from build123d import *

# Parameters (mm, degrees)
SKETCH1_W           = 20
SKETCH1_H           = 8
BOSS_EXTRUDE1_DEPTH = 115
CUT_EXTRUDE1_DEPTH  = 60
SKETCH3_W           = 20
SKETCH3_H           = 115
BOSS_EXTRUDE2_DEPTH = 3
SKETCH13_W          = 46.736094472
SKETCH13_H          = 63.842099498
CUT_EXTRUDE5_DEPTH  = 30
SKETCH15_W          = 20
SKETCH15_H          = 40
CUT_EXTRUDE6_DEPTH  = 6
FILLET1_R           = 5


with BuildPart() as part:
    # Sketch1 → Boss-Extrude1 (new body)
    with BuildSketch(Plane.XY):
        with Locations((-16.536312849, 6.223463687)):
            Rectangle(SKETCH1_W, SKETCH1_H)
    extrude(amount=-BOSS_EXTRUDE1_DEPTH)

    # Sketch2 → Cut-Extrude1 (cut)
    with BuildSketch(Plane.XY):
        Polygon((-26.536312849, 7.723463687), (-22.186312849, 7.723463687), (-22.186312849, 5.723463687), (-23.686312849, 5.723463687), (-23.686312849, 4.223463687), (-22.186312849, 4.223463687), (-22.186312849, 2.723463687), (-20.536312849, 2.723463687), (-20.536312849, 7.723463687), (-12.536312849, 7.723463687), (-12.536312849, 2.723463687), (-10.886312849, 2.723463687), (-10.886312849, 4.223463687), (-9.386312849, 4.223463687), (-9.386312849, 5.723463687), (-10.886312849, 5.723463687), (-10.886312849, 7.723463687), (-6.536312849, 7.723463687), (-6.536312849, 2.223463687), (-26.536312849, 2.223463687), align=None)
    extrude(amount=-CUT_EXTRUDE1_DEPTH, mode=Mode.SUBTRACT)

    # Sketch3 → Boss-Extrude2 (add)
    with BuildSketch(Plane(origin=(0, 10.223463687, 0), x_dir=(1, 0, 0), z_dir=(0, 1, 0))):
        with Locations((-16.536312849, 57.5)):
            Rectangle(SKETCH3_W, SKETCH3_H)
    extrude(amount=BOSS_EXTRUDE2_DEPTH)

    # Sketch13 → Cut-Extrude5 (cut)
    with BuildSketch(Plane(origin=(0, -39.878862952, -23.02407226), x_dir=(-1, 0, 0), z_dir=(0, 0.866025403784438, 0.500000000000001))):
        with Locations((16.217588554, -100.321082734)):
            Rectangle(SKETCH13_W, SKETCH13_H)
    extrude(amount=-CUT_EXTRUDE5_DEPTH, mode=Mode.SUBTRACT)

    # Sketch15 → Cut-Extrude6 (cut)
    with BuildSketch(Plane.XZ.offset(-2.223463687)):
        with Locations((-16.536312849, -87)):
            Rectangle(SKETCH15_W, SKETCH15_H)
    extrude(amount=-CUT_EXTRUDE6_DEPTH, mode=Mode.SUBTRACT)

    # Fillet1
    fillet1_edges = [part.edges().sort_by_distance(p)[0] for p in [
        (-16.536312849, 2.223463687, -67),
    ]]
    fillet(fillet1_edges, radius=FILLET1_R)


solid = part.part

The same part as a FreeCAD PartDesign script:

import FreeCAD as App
import Part
import Sketcher

V = App.Vector


def edges_at(feature, points):
    """Names of the edges that pass closest to the given points."""
    edges = feature.Shape.Edges
    near = lambda p: min(range(len(edges)), key=lambda i: edges[i].distToShape(Part.Vertex(*p))[0])
    return sorted({f"Edge{near(p) + 1}" for p in points})


def add_polygon(sketch, points):
    """Adds a closed chain of lines whose ends are joined by coincident constraints."""
    first, n = sketch.GeometryCount, len(points)
    for a, b in zip(points, points[1:] + points[:1]):
        sketch.addGeometry(Part.LineSegment(App.Vector(*a, 0), App.Vector(*b, 0)), False)
    for i in range(n):
        sketch.addConstraint(Sketcher.Constraint("Coincident", first + i, 2, first + (i + 1) % n, 1))

doc = App.newDocument("Part")
body = doc.addObject("PartDesign::Body", "Body")

sketch1 = doc.addObject("Sketcher::SketchObject", "Sketch")
body.addObject(sketch1)
sketch1.AttachmentSupport = (doc.XY_Plane, [""])
sketch1.MapMode = "FlatFace"
add_polygon(sketch1, [(-27, 10), (-27, 2), (-7, 2), (-7, 10)])
sketch1.addConstraint(Sketcher.Constraint("Vertical", 0))
sketch1.addConstraint(Sketcher.Constraint("Horizontal", 1))
sketch1.addConstraint(Sketcher.Constraint("Vertical", 2))
sketch1.addConstraint(Sketcher.Constraint("Horizontal", 3))
sketch1.addConstraint(Sketcher.Constraint("DistanceX", 1, 1, 1, 2, 20.0))
sketch1.addConstraint(Sketcher.Constraint("DistanceY", 0, 2, 0, 1, 8.0))
sketch1.addConstraint(Sketcher.Constraint("DistanceX", 0, 2, -1, 1, 26.536313))
sketch1.addConstraint(Sketcher.Constraint("DistanceY", -1, 1, 0, 2, 2.223464))
pad1 = doc.addObject("PartDesign::Pad", "Pad")
body.addObject(pad1)
pad1.Profile = sketch1
pad1.Length = 115
pad1.Reversed = True

sketch2 = doc.addObject("Sketcher::SketchObject", "Sketch001")
body.addObject(sketch2)
sketch2.AttachmentSupport = (doc.XY_Plane, [""])
sketch2.MapMode = "FlatFace"
add_polygon(sketch2, [(-22.2, 7.7), (-26.5, 7.7), (-26.5, 2.2), (-6.5, 2.2), (-6.5, 7.7), (-10.9, 7.7), (-10.9, 5.7), (-9.4, 5.7), (-9.4, 4.2), (-10.9, 4.2), (-10.9, 2.7), (-12.5, 2.7), (-12.5, 7.7), (-20.5, 7.7), (-20.5, 2.7), (-22.2, 2.7), (-22.2, 4.2), (-23.7, 4.2), (-23.7, 5.7), (-22.2, 5.7)])
sketch2.addConstraint(Sketcher.Constraint("Horizontal", 0))
sketch2.addConstraint(Sketcher.Constraint("Vertical", 1))
sketch2.addConstraint(Sketcher.Constraint("Horizontal", 2))
sketch2.addConstraint(Sketcher.Constraint("Vertical", 3))
sketch2.addConstraint(Sketcher.Constraint("Horizontal", 4))
sketch2.addConstraint(Sketcher.Constraint("Vertical", 5))
sketch2.addConstraint(Sketcher.Constraint("Horizontal", 6))
sketch2.addConstraint(Sketcher.Constraint("Vertical", 7))
sketch2.addConstraint(Sketcher.Constraint("Horizontal", 8))
sketch2.addConstraint(Sketcher.Constraint("Vertical", 9))
sketch2.addConstraint(Sketcher.Constraint("Horizontal", 10))
sketch2.addConstraint(Sketcher.Constraint("Vertical", 11))
sketch2.addConstraint(Sketcher.Constraint("Horizontal", 12))
sketch2.addConstraint(Sketcher.Constraint("Vertical", 13))
sketch2.addConstraint(Sketcher.Constraint("Horizontal", 14))
sketch2.addConstraint(Sketcher.Constraint("Vertical", 15))
sketch2.addConstraint(Sketcher.Constraint("Horizontal", 16))
sketch2.addConstraint(Sketcher.Constraint("Vertical", 17))
sketch2.addConstraint(Sketcher.Constraint("Horizontal", 18))
sketch2.addConstraint(Sketcher.Constraint("Vertical", 19))
sketch2.addConstraint(Sketcher.Constraint("Horizontal", 0, 2, 3, 2))
sketch2.addConstraint(Sketcher.Constraint("Horizontal", 4, 2, 11, 2))
sketch2.addConstraint(Sketcher.Constraint("Horizontal", 10, 2, 13, 2))
sketch2.addConstraint(Sketcher.Constraint("Horizontal", 8, 2, 15, 2))
sketch2.addConstraint(Sketcher.Constraint("Horizontal", 6, 2, 17, 2))
sketch2.addConstraint(Sketcher.Constraint("Vertical", 5, 2, 8, 2))
sketch2.addConstraint(Sketcher.Constraint("Vertical", 15, 2, 18, 2))
sketch2.addConstraint(Sketcher.Constraint("Equal", 0, 4))
sketch2.addConstraint(Sketcher.Constraint("Equal", 10, 14))
sketch2.addConstraint(Sketcher.Constraint("Equal", 8, 16))
sketch2.addConstraint(Sketcher.Constraint("Equal", 18, 7))
sketch2.addConstraint(Sketcher.Constraint("Equal", 7, 9))
sketch2.addConstraint(Sketcher.Constraint("DistanceX", 2, 1, 2, 2, 20.0))
sketch2.addConstraint(Sketcher.Constraint("DistanceX", 12, 2, 12, 1, 8.0))
sketch2.addConstraint(Sketcher.Constraint("DistanceY", 5, 2, 5, 1, 2.0))
sketch2.addConstraint(Sketcher.Constraint("DistanceY", 11, 1, 11, 2, 5.0))
sketch2.addConstraint(Sketcher.Constraint("DistanceY", 1, 2, 1, 1, 5.5))
sketch2.addConstraint(Sketcher.Constraint("DistanceX", 0, 2, 0, 1, 4.35))
sketch2.addConstraint(Sketcher.Constraint("DistanceX", 0, 2, -1, 1, 26.536313))
sketch2.addConstraint(Sketcher.Constraint("DistanceY", -1, 1, 0, 2, 7.723464))
pocket1 = doc.addObject("PartDesign::Pocket", "Pocket")
body.addObject(pocket1)
pocket1.Profile = sketch2
pocket1.Length = 60

sketch3 = doc.addObject("Sketcher::SketchObject", "Sketch002")
body.addObject(sketch3)
sketch3.AttachmentSupport = (doc.XZ_Plane, [""])
sketch3.MapMode = "FlatFace"
sketch3.AttachmentOffset = App.Placement(V(0, 0, -10.223464), App.Rotation())
add_polygon(sketch3, [(-27, -115), (-27, 0), (-7, 0), (-7, -115)])
sketch3.addConstraint(Sketcher.Constraint("Vertical", 0))
sketch3.addConstraint(Sketcher.Constraint("Horizontal", 1))
sketch3.addConstraint(Sketcher.Constraint("Vertical", 2))
sketch3.addConstraint(Sketcher.Constraint("Horizontal", 3))
sketch3.addConstraint(Sketcher.Constraint("PointOnObject", 0, 2, -1))
sketch3.addConstraint(Sketcher.Constraint("DistanceX", 1, 1, 1, 2, 20.0))
sketch3.addConstraint(Sketcher.Constraint("DistanceY", 0, 1, 0, 2, 115.0))
sketch3.addConstraint(Sketcher.Constraint("DistanceX", 0, 2, -1, 1, 26.536313))
pad2 = doc.addObject("PartDesign::Pad", "Pad001")
body.addObject(pad2)
pad2.Profile = sketch3
pad2.Length = 3
pad2.Reversed = True

sketch4 = doc.addObject("Sketcher::SketchObject", "Sketch003")
body.addObject(sketch4)
sketch4.Placement = App.Placement(V(0, -39.878863, -23.024072), App.Rotation(V(-1, 0, 0), V(0, -0.5, 0.866025404), V(0, 0.866025404, 0.5), "ZXY"))
add_polygon(sketch4, [(-7, -68), (-7, -132), (40, -132), (40, -68)])
sketch4.addConstraint(Sketcher.Constraint("Vertical", 0))
sketch4.addConstraint(Sketcher.Constraint("Horizontal", 1))
sketch4.addConstraint(Sketcher.Constraint("Vertical", 2))
sketch4.addConstraint(Sketcher.Constraint("Horizontal", 3))
sketch4.addConstraint(Sketcher.Constraint("DistanceY", 0, 2, 0, 1, 63.8421))
sketch4.addConstraint(Sketcher.Constraint("DistanceX", 1, 1, 1, 2, 46.736094))
sketch4.addConstraint(Sketcher.Constraint("DistanceX", 0, 2, -1, 1, 7.150459))
sketch4.addConstraint(Sketcher.Constraint("DistanceY", 0, 2, -1, 1, 132.242133))
pocket2 = doc.addObject("PartDesign::Pocket", "Pocket001")
body.addObject(pocket2)
pocket2.Profile = sketch4
pocket2.Length = 30

sketch5 = doc.addObject("Sketcher::SketchObject", "Sketch004")
body.addObject(sketch5)
sketch5.AttachmentSupport = (doc.XZ_Plane, [""])
sketch5.MapMode = "FlatFace"
sketch5.AttachmentOffset = App.Placement(V(0, 0, -2.223464), App.Rotation())
add_polygon(sketch5, [(-27, -67), (-27, -107), (-7, -107), (-7, -67)])
sketch5.addConstraint(Sketcher.Constraint("Vertical", 0))
sketch5.addConstraint(Sketcher.Constraint("Horizontal", 1))
sketch5.addConstraint(Sketcher.Constraint("Vertical", 2))
sketch5.addConstraint(Sketcher.Constraint("Horizontal", 3))
sketch5.addConstraint(Sketcher.Constraint("DistanceX", 1, 1, 1, 2, 20.0))
sketch5.addConstraint(Sketcher.Constraint("DistanceY", 0, 2, 0, 1, 40.0))
sketch5.addConstraint(Sketcher.Constraint("DistanceY", 0, 2, -1, 1, 107.0))
sketch5.addConstraint(Sketcher.Constraint("DistanceX", 0, 2, -1, 1, 26.536313))
pocket3 = doc.addObject("PartDesign::Pocket", "Pocket002")
body.addObject(pocket3)
pocket3.Profile = sketch5
pocket3.Length = 6
doc.recompute()

fillet = doc.addObject("PartDesign::Fillet", "Fillet")
body.addObject(fillet)
fillet.Base = (pocket3, edges_at(pocket3, [(-16.536, 2.223, -67)]))
fillet.Radius = 5

doc.recompute()
